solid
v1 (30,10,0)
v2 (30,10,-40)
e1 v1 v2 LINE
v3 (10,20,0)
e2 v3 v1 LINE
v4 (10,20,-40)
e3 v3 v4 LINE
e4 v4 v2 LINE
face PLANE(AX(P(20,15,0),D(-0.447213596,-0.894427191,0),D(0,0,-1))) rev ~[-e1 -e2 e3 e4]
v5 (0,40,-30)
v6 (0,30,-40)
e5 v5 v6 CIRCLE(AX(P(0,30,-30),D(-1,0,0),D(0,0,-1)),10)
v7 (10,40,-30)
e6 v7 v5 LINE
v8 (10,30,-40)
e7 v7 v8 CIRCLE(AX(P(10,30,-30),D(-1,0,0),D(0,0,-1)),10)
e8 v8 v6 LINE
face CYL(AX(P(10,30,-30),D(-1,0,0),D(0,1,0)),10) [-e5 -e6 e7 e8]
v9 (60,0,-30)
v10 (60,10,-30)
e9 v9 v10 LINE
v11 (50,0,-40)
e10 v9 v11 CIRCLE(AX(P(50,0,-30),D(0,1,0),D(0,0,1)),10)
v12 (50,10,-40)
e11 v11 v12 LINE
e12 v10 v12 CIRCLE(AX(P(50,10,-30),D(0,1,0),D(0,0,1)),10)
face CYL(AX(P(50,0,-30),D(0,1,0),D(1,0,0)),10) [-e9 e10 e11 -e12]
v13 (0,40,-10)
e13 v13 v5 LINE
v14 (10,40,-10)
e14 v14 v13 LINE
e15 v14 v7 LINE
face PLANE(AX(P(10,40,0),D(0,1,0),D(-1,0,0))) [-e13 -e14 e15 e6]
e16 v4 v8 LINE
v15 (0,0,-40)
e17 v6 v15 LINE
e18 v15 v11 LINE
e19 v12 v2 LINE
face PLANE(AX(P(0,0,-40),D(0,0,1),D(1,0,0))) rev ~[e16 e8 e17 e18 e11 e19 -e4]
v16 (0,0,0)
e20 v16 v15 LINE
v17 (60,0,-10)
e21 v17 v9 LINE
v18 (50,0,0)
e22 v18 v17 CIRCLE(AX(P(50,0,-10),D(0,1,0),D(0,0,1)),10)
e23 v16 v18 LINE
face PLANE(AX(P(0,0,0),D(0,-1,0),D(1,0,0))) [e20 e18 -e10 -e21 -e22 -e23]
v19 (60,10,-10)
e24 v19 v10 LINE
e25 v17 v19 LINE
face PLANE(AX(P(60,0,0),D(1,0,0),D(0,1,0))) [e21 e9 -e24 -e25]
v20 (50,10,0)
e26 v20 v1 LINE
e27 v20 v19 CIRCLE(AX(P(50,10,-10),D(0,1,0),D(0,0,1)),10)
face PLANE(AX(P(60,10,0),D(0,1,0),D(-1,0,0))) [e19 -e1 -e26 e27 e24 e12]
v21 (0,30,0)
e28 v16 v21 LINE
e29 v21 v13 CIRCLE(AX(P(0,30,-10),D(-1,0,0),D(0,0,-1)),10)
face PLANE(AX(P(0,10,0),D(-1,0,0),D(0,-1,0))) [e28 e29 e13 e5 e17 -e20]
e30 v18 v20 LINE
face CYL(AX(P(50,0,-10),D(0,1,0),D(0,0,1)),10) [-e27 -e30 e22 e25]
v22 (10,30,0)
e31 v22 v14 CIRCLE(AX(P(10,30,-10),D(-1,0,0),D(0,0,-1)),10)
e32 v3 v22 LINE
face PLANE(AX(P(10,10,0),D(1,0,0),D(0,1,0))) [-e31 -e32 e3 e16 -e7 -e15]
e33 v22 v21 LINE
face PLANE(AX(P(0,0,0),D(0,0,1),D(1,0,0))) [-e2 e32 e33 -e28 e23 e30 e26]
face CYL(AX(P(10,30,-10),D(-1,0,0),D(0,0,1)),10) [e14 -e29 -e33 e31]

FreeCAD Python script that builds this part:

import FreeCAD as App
import Part
import Sketcher

V = App.Vector


def edges_at(feature, points):
    """Names of the edges that pass closest to the given points."""
    edges = feature.Shape.Edges
    near = lambda p: min(range(len(edges)), key=lambda i: edges[i].distToShape(Part.Vertex(*p))[0])
    return sorted({f"Edge{near(p) + 1}" for p in points})


def add_polygon(sketch, points):
    """Adds a closed chain of lines whose ends are joined by coincident constraints."""
    first, n = sketch.GeometryCount, len(points)
    for a, b in zip(points, points[1:] + points[:1]):
        sketch.addGeometry(Part.LineSegment(App.Vector(*a, 0), App.Vector(*b, 0)), False)
    for i in range(n):
        sketch.addConstraint(Sketcher.Constraint("Coincident", first + i, 2, first + (i + 1) % n, 1))

doc = App.newDocument("Part")
body = doc.addObject("PartDesign::Body", "Body")

sketch1 = body.newObject("Sketcher::SketchObject", "Sketch")
sketch1.AttachmentSupport = (doc.getObject("XY_Plane"), [""])
sketch1.MapMode = "FlatFace"
add_polygon(sketch1, [(0, 0), (60, 0), (60, 10), (10, 10), (10, 40), (0, 40)])
sketch1.addConstraint([
    Sketcher.Constraint("Horizontal", 0),
    Sketcher.Constraint("Vertical", 1),
    Sketcher.Constraint("Horizontal", 2),
    Sketcher.Constraint("Vertical", 3),
    Sketcher.Constraint("Horizontal", 4),
    Sketcher.Constraint("Vertical", 5),
    Sketcher.Constraint("Coincident", 5, 2, -1, 1),
    Sketcher.Constraint("Equal", 4, 1),
    Sketcher.Constraint("DistanceX", 0, 1, 0, 2, 60.0),
    Sketcher.Constraint("DistanceX", 4, 2, 4, 1, 10.0),
    Sketcher.Constraint("DistanceY", 3, 1, 3, 2, 30.0),
])
pad1 = body.newObject("PartDesign::Pad", "Pad")
pad1.Profile = sketch1
pad1.Length = 40
pad1.Reversed = True
doc.recompute()

chamfer = body.newObject("PartDesign::Chamfer", "Chamfer")
chamfer.Base = (pad1, edges_at(pad1, [(10, 10, -20)]))
chamfer.ChamferType = "Two distances"
chamfer.Size = 10
chamfer.Size2 = 20
chamfer.FlipDirection = True
doc.recompute()

fillet = body.newObject("PartDesign::Fillet", "Fillet")
fillet.Base = (chamfer, edges_at(chamfer, [
    (5, 40, 0),
    (5, 40, -40),
    (60, 5, 0),
    (60, 5, -40),
]))
fillet.Radius = 10

doc.recompute()
